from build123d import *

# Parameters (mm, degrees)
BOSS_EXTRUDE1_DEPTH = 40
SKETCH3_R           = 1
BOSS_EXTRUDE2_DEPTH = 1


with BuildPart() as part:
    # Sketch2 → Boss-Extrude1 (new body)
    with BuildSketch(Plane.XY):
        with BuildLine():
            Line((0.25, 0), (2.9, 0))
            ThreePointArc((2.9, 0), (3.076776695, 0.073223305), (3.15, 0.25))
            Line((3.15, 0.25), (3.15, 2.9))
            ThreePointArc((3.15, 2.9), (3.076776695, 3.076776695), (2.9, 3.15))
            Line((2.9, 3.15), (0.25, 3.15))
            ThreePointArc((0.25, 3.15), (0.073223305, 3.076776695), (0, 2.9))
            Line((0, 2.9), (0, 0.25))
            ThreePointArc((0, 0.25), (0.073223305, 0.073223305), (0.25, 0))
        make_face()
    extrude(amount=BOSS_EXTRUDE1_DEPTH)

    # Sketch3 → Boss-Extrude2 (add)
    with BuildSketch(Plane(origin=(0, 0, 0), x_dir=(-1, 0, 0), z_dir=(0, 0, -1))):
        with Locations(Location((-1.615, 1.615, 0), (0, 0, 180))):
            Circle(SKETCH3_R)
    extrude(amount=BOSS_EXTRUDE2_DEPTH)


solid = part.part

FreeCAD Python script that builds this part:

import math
import FreeCAD as App
import Part
import Sketcher

doc = App.newDocument("Part")
body = doc.addObject("PartDesign::Body", "Body")

sketch1 = doc.addObject("Sketcher::SketchObject", "Sketch")
body.addObject(sketch1)
sketch1.AttachmentSupport = (doc.XY_Plane, [""])
sketch1.MapMode = "FlatFace"
sketch1.addGeometry([
    Part.LineSegment(App.Vector(0.25, 0, 0), App.Vector(2.9, 0, 0)),
    Part.ArcOfCircle(Part.Circle(App.Vector(2.9, 0.25, 0), App.Vector(0, 0, 1), 0.25), math.radians(-90), math.radians(0)),
    Part.LineSegment(App.Vector(3.15, 0.25, 0), App.Vector(3.15, 2.9, 0)),
    Part.ArcOfCircle(Part.Circle(App.Vector(2.9, 2.9, 0), App.Vector(0, 0, 1), 0.25), math.radians(0), math.radians(90)),
    Part.LineSegment(App.Vector(2.9, 3.15, 0), App.Vector(0.25, 3.15, 0)),
    Part.ArcOfCircle(Part.Circle(App.Vector(0.25, 2.9, 0), App.Vector(0, 0, 1), 0.25), math.radians(90), math.radians(180)),
    Part.LineSegment(App.Vector(0, 2.9, 0), App.Vector(0, 0.25, 0)),
    Part.ArcOfCircle(Part.Circle(App.Vector(0.25, 0.25, 0), App.Vector(0, 0, 1), 0.25), math.radians(-180), math.radians(-90)),
], False)
sketch1.addConstraint([
    Sketcher.Constraint("Tangent", 0, 2, 1, 1),
    Sketcher.Constraint("Tangent", 1, 2, 2, 1),
    Sketcher.Constraint("Tangent", 2, 2, 3, 1),
    Sketcher.Constraint("Tangent", 3, 2, 4, 1),
    Sketcher.Constraint("Tangent", 4, 2, 5, 1),
    Sketcher.Constraint("Tangent", 5, 2, 6, 1),
    Sketcher.Constraint("Tangent", 6, 2, 7, 1),
    Sketcher.Constraint("Tangent", 7, 2, 0, 1),
    Sketcher.Constraint("Horizontal", 0),
    Sketcher.Constraint("Vertical", 2),
    Sketcher.Constraint("Horizontal", 4),
    Sketcher.Constraint("Vertical", 6),
    Sketcher.Constraint("Equal", 1, 3),
    Sketcher.Constraint("Equal", 3, 5),
    Sketcher.Constraint("Equal", 5, 7),
    Sketcher.Constraint("PointOnObject", 0, 2, -1),
    Sketcher.Constraint("PointOnObject", 5, 2, -2),
    Sketcher.Constraint("Equal", 4, 2),
    Sketcher.Constraint("Radius", 1, 0.25),
    Sketcher.Constraint("DistanceX", 0, 1, 0, 2, 2.65),
])
pad1 = doc.addObject("PartDesign::Pad", "Pad")
body.addObject(pad1)
pad1.Profile = sketch1
pad1.Length = 40

sketch2 = doc.addObject("Sketcher::SketchObject", "Sketch001")
body.addObject(sketch2)
sketch2.AttachmentSupport = (doc.XY_Plane, [""])
sketch2.MapMode = "FlatFace"
sketch2.addGeometry(Part.Circle(App.Vector(1.6, 1.6, 0), App.Vector(0, 0, 1), 1), False)
sketch2.addConstraint([
    Sketcher.Constraint("Diameter", 0, 2.0),
    Sketcher.Constraint("DistanceX", -1, 1, 0, 3, 1.615),
    Sketcher.Constraint("DistanceY", -1, 1, 0, 3, 1.615),
])
pad2 = doc.addObject("PartDesign::Pad", "Pad001")
body.addObject(pad2)
pad2.Profile = sketch2
pad2.Length = 1
pad2.Reversed = True

doc.recompute()
